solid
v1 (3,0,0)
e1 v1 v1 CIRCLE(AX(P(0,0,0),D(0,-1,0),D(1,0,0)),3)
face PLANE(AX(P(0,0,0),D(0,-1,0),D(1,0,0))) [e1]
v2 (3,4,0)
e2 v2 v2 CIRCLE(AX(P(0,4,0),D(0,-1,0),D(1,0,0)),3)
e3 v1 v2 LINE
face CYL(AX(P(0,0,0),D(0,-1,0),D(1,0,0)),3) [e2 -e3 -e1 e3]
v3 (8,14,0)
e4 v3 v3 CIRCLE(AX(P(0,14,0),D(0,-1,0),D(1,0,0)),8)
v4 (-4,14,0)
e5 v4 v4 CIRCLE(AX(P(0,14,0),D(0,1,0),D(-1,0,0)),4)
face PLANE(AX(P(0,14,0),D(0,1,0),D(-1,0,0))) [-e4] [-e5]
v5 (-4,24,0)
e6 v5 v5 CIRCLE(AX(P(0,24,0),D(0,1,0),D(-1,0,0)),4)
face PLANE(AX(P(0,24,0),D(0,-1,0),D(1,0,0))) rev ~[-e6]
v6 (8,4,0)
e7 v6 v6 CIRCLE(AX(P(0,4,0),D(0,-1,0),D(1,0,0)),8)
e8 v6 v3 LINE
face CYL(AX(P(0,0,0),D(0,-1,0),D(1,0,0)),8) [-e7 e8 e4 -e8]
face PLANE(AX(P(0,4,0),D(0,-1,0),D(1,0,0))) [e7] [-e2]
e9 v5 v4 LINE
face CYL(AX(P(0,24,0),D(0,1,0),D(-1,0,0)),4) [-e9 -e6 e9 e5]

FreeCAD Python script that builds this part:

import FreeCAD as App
import Part
import Sketcher

V = App.Vector
Q = App.Units.Quantity

doc = App.newDocument("Part")
body = doc.addObject("PartDesign::Body", "Body")

# Sketch on XZ plane
sketch1 = body.newObject("Sketcher::SketchObject", "Sketch")
sketch1.AttachmentSupport = (doc.getObject("XZ_Plane"), [""])
sketch1.MapMode = "FlatFace"
sketch1.addGeometry(Part.Circle(V(0, 0, 0), V(0, 0, 1), 8), False)
sketch1.addConstraint([
    Sketcher.Constraint("Coincident", 0, 3, -1, 1),
    Sketcher.Constraint("Diameter", 0, Q("16 mm")),
])
pad1 = body.newObject("PartDesign::Pad", "Pad")
pad1.Profile = sketch1
pad1.Length = 24
pad1.Reversed = True

# Sketch on XZ plane
sketch2 = body.newObject("Sketcher::SketchObject", "Sketch001")
sketch2.AttachmentSupport = (doc.getObject("XZ_Plane"), [""])
sketch2.MapMode = "FlatFace"
sketch2.addGeometry([
    Part.Circle(V(0, 0, 0), V(0, 0, 1), 12.2),
    Part.Circle(V(0, 0, 0), V(0, 0, 1), 3),
], False)
sketch2.addConstraint([
    Sketcher.Constraint("Coincident", 0, 3, -1, 1),
    Sketcher.Constraint("Coincident", 1, 3, -1, 1),
    Sketcher.Constraint("Diameter", 1, Q("6 mm")),
    Sketcher.Constraint("Diameter", 0, Q("24.313504 mm")),
])
pocket1 = body.newObject("PartDesign::Pocket", "Pocket")
pocket1.Profile = sketch2
pocket1.Length = 4

# Sketch on XZ plane
sketch3 = body.newObject("Sketcher::SketchObject", "Sketch002")
sketch3.AttachmentSupport = (doc.getObject("XZ_Plane"), [""])
sketch3.MapMode = "FlatFace"
sketch3.AttachmentOffset = App.Placement(V(0, 0, -24), App.Rotation())
sketch3.addGeometry([
    Part.Circle(V(0, 0, 0), V(0, 0, 1), 10.9),
    Part.Circle(V(0, 0, 0), V(0, 0, 1), 4),
], False)
sketch3.addConstraint([
    Sketcher.Constraint("Coincident", 0, 3, -1, 1),
    Sketcher.Constraint("Coincident", 1, 3, -1, 1),
    Sketcher.Constraint("Diameter", 1, Q("8 mm")),
    Sketcher.Constraint("Diameter", 0, Q("21.82019 mm")),
])
pocket2 = body.newObject("PartDesign::Pocket", "Pocket001")
pocket2.Profile = sketch3
pocket2.Length = 10
pocket2.Reversed = True

doc.recompute()
